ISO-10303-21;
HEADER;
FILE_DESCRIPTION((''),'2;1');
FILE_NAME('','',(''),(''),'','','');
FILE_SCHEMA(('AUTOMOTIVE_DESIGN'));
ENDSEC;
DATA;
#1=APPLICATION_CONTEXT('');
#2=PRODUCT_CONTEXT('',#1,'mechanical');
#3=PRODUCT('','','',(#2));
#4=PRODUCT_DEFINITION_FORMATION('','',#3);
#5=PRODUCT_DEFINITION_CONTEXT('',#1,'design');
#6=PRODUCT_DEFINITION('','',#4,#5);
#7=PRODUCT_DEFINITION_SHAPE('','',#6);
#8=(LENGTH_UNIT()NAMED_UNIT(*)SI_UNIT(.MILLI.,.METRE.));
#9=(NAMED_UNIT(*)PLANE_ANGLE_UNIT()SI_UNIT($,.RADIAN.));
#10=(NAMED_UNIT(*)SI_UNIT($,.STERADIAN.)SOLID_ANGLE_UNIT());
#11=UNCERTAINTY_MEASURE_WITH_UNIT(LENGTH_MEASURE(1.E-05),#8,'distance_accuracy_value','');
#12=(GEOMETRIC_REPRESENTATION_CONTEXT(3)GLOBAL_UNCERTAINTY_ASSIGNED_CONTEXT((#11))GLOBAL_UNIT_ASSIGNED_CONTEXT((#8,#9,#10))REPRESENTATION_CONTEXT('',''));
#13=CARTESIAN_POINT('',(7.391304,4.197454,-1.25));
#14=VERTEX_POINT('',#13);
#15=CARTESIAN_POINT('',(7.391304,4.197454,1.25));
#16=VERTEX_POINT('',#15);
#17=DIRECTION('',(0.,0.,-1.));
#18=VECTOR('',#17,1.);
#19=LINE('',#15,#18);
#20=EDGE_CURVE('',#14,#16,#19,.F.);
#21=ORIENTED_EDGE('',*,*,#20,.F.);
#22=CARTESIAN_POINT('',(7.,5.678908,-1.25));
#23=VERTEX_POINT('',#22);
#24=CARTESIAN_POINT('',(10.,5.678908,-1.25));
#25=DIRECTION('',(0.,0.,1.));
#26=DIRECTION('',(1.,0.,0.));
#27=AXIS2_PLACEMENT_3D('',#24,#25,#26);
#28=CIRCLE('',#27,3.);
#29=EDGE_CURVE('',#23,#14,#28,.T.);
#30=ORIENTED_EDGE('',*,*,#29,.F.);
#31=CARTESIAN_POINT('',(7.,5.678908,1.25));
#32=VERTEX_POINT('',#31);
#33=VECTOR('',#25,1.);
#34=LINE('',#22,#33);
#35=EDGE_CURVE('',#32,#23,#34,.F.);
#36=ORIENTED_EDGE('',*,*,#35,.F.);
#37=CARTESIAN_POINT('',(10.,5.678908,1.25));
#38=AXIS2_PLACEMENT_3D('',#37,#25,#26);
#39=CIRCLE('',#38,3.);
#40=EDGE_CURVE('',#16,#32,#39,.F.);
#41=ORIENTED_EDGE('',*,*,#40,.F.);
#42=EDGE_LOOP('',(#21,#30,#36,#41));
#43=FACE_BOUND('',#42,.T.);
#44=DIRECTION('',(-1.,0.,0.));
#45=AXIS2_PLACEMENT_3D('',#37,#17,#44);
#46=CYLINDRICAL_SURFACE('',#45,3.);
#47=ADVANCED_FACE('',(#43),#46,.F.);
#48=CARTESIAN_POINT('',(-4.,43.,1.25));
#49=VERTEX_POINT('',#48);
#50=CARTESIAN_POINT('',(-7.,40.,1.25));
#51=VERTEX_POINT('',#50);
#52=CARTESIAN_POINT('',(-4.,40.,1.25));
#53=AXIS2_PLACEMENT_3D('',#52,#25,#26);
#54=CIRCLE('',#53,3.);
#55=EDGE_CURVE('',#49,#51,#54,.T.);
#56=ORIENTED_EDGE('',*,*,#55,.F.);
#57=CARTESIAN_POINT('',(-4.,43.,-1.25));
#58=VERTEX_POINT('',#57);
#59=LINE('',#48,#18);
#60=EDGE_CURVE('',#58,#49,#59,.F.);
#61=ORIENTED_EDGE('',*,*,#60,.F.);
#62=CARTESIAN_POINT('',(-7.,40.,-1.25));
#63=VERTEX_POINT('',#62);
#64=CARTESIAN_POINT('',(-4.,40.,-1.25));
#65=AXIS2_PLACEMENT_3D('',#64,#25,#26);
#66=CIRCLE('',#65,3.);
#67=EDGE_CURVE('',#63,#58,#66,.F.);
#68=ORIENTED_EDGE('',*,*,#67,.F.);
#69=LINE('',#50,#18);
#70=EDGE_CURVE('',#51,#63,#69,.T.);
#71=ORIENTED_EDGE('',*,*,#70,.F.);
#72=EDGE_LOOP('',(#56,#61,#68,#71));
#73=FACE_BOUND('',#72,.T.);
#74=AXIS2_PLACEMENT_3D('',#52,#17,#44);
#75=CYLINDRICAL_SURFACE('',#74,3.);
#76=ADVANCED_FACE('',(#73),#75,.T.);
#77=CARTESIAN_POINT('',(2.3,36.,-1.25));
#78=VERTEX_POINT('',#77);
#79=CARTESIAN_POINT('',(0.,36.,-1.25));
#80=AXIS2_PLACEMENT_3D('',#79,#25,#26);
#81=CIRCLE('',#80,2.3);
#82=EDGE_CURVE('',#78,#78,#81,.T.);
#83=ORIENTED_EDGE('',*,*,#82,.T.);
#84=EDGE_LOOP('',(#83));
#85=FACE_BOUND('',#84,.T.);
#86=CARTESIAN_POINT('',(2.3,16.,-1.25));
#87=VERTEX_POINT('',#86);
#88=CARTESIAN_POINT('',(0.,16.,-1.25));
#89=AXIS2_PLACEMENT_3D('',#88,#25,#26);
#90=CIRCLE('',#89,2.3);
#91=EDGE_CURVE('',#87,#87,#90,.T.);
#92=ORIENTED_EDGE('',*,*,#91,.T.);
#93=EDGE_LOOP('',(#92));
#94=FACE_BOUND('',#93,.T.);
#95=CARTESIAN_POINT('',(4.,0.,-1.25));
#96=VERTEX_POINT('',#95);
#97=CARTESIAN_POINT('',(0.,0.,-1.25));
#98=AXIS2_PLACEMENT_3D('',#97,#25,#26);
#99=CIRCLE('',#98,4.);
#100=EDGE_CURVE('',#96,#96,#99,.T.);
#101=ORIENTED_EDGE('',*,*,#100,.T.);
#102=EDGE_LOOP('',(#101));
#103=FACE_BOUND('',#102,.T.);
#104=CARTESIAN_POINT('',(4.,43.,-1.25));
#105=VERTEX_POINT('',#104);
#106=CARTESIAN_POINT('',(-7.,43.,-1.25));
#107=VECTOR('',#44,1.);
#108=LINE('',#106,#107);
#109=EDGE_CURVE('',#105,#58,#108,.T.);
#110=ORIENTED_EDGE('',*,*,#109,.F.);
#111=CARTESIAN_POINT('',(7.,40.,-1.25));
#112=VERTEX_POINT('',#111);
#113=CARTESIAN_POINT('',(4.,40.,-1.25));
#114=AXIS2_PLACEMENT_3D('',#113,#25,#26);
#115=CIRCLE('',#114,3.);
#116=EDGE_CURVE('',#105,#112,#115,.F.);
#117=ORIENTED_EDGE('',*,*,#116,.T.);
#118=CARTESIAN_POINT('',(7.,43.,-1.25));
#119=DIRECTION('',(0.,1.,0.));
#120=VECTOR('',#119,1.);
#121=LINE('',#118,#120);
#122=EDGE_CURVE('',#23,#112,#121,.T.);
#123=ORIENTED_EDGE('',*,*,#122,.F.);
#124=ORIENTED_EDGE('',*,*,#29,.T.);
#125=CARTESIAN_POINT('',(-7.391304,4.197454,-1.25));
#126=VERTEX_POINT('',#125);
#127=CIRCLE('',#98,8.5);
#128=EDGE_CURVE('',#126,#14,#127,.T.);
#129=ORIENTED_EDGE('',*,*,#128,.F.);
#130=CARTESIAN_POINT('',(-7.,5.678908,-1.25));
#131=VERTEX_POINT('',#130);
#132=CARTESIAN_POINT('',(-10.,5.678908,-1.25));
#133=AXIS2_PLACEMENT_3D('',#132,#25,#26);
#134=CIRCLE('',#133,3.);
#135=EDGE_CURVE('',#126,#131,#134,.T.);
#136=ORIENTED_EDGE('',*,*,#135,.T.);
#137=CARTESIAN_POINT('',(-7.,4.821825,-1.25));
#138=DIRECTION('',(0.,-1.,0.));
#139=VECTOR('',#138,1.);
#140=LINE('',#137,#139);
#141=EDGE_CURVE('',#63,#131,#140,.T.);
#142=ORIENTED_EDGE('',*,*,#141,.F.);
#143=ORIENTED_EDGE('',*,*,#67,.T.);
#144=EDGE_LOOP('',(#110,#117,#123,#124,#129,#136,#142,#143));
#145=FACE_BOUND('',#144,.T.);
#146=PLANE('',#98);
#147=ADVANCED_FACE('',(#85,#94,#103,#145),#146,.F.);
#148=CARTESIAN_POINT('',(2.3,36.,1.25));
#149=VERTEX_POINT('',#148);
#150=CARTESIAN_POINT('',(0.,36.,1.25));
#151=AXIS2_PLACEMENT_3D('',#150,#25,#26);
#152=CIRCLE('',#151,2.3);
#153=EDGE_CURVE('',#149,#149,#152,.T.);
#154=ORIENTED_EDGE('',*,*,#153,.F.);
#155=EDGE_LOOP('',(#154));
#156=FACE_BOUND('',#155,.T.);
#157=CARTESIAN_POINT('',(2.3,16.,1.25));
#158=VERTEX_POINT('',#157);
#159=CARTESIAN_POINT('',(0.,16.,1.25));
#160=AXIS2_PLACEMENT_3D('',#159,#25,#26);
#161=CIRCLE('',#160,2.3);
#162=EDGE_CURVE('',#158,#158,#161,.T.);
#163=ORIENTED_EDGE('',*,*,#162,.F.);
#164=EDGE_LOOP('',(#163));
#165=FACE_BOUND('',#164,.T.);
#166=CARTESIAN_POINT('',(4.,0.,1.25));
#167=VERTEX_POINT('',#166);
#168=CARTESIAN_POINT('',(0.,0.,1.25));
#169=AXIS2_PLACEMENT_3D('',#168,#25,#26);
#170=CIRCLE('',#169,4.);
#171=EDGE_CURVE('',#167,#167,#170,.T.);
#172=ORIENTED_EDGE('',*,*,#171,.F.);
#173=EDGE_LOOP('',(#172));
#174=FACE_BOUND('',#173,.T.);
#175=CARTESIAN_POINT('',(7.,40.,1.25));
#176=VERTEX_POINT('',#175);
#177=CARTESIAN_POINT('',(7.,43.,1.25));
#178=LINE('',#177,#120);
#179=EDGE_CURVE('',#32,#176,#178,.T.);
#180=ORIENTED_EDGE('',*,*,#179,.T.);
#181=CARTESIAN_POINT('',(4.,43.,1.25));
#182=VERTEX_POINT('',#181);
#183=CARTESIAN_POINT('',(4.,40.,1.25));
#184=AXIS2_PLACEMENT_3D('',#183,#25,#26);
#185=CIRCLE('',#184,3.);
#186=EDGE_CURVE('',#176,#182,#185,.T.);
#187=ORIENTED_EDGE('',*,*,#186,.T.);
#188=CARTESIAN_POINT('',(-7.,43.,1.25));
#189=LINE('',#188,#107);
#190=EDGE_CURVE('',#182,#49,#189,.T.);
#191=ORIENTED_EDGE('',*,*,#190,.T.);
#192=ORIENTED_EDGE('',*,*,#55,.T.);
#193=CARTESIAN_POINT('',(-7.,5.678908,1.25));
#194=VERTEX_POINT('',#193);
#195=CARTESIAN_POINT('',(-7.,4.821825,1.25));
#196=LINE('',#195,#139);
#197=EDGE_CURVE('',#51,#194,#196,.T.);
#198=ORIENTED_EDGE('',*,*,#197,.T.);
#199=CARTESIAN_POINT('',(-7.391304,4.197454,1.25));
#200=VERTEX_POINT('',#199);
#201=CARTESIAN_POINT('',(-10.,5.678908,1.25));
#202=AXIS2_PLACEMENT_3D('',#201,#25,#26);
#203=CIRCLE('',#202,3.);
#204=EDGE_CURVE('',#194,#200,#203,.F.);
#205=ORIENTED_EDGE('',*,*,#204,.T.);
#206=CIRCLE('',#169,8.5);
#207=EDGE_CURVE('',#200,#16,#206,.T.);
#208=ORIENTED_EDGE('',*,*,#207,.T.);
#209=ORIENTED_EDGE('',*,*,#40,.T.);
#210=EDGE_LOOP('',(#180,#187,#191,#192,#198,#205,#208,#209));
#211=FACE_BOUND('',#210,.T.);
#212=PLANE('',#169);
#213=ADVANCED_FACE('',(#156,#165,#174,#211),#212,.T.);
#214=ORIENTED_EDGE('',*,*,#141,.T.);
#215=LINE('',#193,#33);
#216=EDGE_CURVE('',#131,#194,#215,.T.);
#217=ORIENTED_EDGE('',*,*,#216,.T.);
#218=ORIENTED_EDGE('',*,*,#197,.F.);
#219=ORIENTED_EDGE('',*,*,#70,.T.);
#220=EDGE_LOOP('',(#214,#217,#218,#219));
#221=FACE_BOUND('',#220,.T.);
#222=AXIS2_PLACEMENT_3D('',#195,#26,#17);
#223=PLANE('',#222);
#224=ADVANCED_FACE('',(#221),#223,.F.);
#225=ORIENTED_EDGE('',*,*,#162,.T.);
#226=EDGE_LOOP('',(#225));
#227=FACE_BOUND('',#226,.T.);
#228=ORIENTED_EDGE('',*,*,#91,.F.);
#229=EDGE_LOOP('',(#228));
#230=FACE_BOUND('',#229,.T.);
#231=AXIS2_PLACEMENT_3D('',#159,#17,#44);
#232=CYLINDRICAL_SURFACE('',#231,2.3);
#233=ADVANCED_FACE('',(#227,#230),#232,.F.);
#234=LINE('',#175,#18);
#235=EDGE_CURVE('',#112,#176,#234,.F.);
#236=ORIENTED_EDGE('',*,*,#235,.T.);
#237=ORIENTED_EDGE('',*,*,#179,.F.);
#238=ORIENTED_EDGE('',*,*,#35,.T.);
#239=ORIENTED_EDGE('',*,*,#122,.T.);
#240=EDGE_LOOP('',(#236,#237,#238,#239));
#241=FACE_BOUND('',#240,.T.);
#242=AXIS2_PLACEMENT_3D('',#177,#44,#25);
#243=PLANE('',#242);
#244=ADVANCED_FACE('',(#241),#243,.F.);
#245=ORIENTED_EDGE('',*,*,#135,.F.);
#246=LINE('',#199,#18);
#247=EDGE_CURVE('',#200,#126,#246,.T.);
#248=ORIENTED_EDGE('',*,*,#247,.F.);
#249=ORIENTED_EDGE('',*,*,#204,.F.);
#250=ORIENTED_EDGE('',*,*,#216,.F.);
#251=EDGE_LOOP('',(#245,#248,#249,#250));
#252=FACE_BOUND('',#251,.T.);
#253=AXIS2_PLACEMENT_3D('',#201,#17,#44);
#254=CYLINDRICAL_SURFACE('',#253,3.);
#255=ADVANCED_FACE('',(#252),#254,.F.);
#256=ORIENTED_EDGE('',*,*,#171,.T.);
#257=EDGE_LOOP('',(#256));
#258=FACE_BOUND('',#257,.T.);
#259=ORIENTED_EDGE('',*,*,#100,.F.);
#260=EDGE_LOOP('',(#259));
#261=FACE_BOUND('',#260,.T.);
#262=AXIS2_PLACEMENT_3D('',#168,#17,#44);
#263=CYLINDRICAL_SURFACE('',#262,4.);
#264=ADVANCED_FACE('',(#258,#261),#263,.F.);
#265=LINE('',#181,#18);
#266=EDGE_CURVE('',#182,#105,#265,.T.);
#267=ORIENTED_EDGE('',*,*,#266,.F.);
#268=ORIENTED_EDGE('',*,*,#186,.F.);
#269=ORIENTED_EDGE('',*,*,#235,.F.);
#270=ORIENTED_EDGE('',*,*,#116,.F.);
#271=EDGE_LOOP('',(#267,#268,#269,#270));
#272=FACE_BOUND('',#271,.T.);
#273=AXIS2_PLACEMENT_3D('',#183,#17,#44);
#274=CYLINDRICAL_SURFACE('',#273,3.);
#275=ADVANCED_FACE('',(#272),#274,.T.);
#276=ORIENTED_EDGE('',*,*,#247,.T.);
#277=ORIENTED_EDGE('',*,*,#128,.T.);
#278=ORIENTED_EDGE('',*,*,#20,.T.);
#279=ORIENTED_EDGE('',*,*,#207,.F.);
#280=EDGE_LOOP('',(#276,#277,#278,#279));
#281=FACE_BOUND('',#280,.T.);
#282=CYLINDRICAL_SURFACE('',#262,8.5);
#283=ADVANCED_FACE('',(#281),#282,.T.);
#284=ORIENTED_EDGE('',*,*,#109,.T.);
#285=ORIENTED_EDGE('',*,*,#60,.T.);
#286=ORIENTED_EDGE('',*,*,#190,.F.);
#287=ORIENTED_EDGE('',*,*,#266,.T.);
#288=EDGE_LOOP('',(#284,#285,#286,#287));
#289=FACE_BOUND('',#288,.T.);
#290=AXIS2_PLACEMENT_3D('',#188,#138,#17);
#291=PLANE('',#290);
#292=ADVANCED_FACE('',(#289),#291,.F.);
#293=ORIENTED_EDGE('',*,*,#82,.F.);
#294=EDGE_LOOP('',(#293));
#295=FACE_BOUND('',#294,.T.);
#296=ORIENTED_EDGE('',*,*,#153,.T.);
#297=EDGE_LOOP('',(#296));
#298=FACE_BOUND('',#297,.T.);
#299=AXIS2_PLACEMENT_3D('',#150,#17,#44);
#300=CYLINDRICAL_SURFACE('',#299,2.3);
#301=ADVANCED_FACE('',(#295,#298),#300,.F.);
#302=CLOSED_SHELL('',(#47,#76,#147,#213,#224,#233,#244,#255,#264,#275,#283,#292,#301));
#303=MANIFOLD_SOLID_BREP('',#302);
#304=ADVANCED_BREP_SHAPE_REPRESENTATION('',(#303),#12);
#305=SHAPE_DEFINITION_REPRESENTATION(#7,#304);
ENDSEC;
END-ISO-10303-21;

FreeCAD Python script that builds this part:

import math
import FreeCAD as App
import Part
import Sketcher
from FreeCAD import Vector


def edges_at(feature, points):
    """Names of the edges that pass closest to the given points."""
    edges = feature.Shape.Edges
    near = lambda p: min(range(len(edges)), key=lambda i: edges[i].distToShape(Part.Vertex(*p))[0])
    return sorted({f"Edge{near(p) + 1}" for p in points})

doc = App.newDocument("Part")
body = doc.addObject("PartDesign::Body", "Body")

# Sketch on XY plane
sketch1 = body.newObject("Sketcher::SketchObject", "Sketch")
sketch1.AttachmentSupport = (doc.getObject("XY_Plane"), [""])
sketch1.MapMode = "FlatFace"
sketch1.addGeometry([
    Part.LineSegment(Vector(-7, 43, 0), Vector(-7, 4.8, 0)),  # 0
    Part.ArcOfCircle(Part.Circle(Vector(0, 0, 0), Vector(0, 0, 1), 8.5), math.radians(145), math.radians(395)),  # 1
    Part.LineSegment(Vector(7, 4.8, 0), Vector(7, 43, 0)),  # 2
    Part.LineSegment(Vector(7, 43, 0), Vector(-7, 43, 0)),  # 3
    Part.Circle(Vector(0, 0, 0), Vector(0, 0, 1), 4),  # 4
    Part.Circle(Vector(0, 16, 0), Vector(0, 0, 1), 2.3),  # 5
    Part.Circle(Vector(0, 36, 0), Vector(0, 0, 1), 2.3),  # 6
], False)
sketch1.addConstraint([
    Sketcher.Constraint("Coincident", 0, 2, 1, 1),
    Sketcher.Constraint("Coincident", 1, 2, 2, 1),
    Sketcher.Constraint("Coincident", 2, 2, 3, 1),
    Sketcher.Constraint("Coincident", 3, 2, 0, 1),
    Sketcher.Constraint("Vertical", 0),
    Sketcher.Constraint("Vertical", 2),
    Sketcher.Constraint("Horizontal", 3),
    Sketcher.Constraint("Coincident", 1, 3, -1, 1),
    Sketcher.Constraint("Coincident", 4, 3, -1, 1),
    Sketcher.Constraint("Equal", 5, 6),
    Sketcher.Constraint("PointOnObject", 5, 3, -2),
    Sketcher.Constraint("PointOnObject", 6, 3, -2),
    Sketcher.Constraint("Horizontal", 0, 2, 1, 2),
    Sketcher.Constraint("Diameter", 4, 8.0),
    Sketcher.Constraint("Diameter", 5, 4.6),
    Sketcher.Constraint("Radius", 1, 8.5),
    Sketcher.Constraint("DistanceX", 3, 2, 3, 1, 14.0),
    Sketcher.Constraint("DistanceY", -1, 1, 5, 3, 16.0),
    Sketcher.Constraint("DistanceY", -1, 1, 6, 3, 36.0),
    Sketcher.Constraint("DistanceY", -1, 1, 2, 2, 43.0),
])
pad1 = body.newObject("PartDesign::Pad", "Pad")
pad1.Profile = sketch1
pad1.Length = 2.5
pad1.Midplane = True
doc.recompute()

fillet = body.newObject("PartDesign::Fillet", "Fillet")
fillet.Base = (pad1, edges_at(pad1, [
    (-7, 4.822, 0),
    (-7, 43, 0),
    (7, 43, 0),
    (7, 4.822, 0),
]))
fillet.Radius = 3

doc.recompute()
